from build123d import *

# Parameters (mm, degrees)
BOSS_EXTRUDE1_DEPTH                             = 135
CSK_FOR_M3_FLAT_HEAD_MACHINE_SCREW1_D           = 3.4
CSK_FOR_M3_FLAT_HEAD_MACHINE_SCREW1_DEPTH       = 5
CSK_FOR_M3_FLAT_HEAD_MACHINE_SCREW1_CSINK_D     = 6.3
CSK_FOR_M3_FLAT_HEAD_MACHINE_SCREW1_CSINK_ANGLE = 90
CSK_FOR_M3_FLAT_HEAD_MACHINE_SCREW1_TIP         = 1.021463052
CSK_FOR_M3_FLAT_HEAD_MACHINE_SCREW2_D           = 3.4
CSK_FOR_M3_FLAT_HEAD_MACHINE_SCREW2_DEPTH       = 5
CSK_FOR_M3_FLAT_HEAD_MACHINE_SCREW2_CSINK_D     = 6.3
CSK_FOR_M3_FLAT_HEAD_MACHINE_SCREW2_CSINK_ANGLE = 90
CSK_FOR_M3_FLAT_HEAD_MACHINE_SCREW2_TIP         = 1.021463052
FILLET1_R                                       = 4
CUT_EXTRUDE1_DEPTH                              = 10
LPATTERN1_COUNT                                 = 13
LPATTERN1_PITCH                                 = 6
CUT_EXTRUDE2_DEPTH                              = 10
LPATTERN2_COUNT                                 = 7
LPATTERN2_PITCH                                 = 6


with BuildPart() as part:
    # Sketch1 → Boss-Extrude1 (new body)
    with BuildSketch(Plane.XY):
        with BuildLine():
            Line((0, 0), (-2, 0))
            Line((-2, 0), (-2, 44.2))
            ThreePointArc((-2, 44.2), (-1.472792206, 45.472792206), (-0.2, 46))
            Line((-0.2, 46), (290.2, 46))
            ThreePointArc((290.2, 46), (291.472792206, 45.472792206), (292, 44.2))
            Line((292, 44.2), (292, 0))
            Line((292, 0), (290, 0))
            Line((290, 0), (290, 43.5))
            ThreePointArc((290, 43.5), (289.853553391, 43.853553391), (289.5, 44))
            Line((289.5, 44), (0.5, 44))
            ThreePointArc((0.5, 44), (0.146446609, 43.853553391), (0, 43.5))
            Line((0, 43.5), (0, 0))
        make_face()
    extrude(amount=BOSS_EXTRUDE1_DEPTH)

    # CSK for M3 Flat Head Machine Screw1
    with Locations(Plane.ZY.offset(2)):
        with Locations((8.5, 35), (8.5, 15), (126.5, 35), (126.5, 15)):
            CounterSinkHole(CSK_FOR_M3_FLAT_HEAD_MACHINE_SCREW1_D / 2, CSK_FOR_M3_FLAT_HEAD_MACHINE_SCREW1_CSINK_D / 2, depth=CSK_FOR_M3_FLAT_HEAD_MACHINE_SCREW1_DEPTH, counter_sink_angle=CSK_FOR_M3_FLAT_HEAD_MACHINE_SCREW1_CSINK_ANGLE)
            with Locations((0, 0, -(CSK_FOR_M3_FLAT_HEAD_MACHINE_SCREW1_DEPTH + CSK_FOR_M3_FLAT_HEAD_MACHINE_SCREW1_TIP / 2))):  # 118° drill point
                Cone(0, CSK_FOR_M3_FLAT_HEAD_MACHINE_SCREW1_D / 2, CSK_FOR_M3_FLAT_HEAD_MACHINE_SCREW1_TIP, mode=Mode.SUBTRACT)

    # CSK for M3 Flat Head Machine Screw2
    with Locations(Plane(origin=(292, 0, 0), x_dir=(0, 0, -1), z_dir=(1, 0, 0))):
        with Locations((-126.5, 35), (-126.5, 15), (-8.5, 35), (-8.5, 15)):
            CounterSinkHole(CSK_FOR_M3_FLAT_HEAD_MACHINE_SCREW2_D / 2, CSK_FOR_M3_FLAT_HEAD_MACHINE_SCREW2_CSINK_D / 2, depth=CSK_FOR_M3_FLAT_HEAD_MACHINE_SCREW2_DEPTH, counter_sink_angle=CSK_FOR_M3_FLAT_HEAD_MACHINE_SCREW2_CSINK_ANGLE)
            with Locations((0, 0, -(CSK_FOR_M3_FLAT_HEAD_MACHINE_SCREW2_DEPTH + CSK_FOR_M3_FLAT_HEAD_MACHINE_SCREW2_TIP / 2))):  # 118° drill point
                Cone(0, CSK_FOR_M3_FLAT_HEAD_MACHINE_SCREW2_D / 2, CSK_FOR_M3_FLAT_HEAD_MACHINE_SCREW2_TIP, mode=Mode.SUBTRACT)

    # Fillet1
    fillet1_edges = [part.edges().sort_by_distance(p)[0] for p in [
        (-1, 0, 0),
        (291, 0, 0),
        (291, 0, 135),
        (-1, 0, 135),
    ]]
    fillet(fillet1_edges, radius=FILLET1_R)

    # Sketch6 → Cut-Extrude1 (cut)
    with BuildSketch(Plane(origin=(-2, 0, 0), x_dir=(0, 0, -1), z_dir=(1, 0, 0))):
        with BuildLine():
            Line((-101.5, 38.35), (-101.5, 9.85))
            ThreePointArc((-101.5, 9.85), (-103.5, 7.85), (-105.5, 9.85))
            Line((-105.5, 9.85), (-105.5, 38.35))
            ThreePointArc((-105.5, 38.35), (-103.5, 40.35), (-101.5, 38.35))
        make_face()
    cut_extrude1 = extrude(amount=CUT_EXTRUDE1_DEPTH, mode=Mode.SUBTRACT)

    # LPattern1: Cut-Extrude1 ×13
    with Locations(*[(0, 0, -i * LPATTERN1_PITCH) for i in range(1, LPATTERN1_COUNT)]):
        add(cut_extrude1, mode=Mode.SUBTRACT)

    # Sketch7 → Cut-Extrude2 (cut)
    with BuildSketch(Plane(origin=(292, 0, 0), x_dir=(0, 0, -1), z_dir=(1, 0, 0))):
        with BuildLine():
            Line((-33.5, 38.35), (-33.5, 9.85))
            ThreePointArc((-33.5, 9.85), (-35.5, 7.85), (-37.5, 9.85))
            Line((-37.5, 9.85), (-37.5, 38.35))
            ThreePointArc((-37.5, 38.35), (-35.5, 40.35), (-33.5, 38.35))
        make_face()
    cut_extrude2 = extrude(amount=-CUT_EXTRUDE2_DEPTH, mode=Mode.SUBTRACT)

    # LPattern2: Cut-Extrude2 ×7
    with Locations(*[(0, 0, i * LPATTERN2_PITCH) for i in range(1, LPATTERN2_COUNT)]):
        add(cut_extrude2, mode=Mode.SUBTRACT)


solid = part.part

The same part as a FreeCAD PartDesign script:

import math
import FreeCAD as App
import Part
import Sketcher
Q = App.Units.Quantity


def edges_at(feature, points):
    """Names of the edges that pass closest to the given points."""
    edges = feature.Shape.Edges
    near = lambda p: min(range(len(edges)), key=lambda i: edges[i].distToShape(Part.Vertex(*p))[0])
    return sorted({f"Edge{near(p) + 1}" for p in points})

doc = App.newDocument("Part")
body = doc.addObject("PartDesign::Body", "Body")

# Sketch on XY plane
sketch1 = body.newObject("Sketcher::SketchObject", "Sketch")
sketch1.AttachmentSupport = (doc.getObject("XY_Plane"), [""])
sketch1.MapMode = "FlatFace"
sketch1.addGeometry([
    Part.LineSegment(App.Vector(-2, 0, 0), App.Vector(0, 0, 0)),  # 0
    Part.LineSegment(App.Vector(0, 0, 0), App.Vector(0, 43.5, 0)),  # 1
    Part.ArcOfCircle(Part.Circle(App.Vector(0.5, 43.5, 0), App.Vector(0, 0, 1), 0.5), math.radians(90), math.radians(180)),  # 2
    Part.LineSegment(App.Vector(0.5, 44, 0), App.Vector(289.5, 44, 0)),  # 3
    Part.ArcOfCircle(Part.Circle(App.Vector(289.5, 43.5, 0), App.Vector(0, 0, 1), 0.5), math.radians(0), math.radians(90)),  # 4
    Part.LineSegment(App.Vector(290, 43.5, 0), App.Vector(290, 0, 0)),  # 5
    Part.LineSegment(App.Vector(290, 0, 0), App.Vector(292, 0, 0)),  # 6
    Part.LineSegment(App.Vector(292, 0, 0), App.Vector(292, 44.2, 0)),  # 7
    Part.ArcOfCircle(Part.Circle(App.Vector(290.2, 44.2, 0), App.Vector(0, 0, 1), 1.8), math.radians(0), math.radians(90)),  # 8
    Part.LineSegment(App.Vector(290.2, 46, 0), App.Vector(-0.2, 46, 0)),  # 9
    Part.ArcOfCircle(Part.Circle(App.Vector(-0.2, 44.2, 0), App.Vector(0, 0, 1), 1.8), math.radians(90), math.radians(180)),  # 10
    Part.LineSegment(App.Vector(-2, 44.2, 0), App.Vector(-2, 0, 0)),  # 11
], False)
sketch1.addConstraint([
    Sketcher.Constraint("Coincident", 0, 2, 1, 1),
    Sketcher.Constraint("Tangent", 1, 2, 2, 2),
    Sketcher.Constraint("Tangent", 2, 1, 3, 1),
    Sketcher.Constraint("Tangent", 3, 2, 4, 2),
    Sketcher.Constraint("Tangent", 4, 1, 5, 1),
    Sketcher.Constraint("Coincident", 5, 2, 6, 1),
    Sketcher.Constraint("Coincident", 6, 2, 7, 1),
    Sketcher.Constraint("Tangent", 7, 2, 8, 1),
    Sketcher.Constraint("Tangent", 8, 2, 9, 1),
    Sketcher.Constraint("Tangent", 9, 2, 10, 1),
    Sketcher.Constraint("Tangent", 10, 2, 11, 1),
    Sketcher.Constraint("Coincident", 11, 2, 0, 1),
    Sketcher.Constraint("Horizontal", 0),
    Sketcher.Constraint("Vertical", 1),
    Sketcher.Constraint("Horizontal", 3),
    Sketcher.Constraint("Vertical", 5),
    Sketcher.Constraint("Horizontal", 6),
    Sketcher.Constraint("Vertical", 7),
    Sketcher.Constraint("Horizontal", 9),
    Sketcher.Constraint("Vertical", 11),
    Sketcher.Constraint("Coincident", 0, 2, -1, 1),
    Sketcher.Constraint("Equal", 2, 4),
    Sketcher.Constraint("Equal", 8, 10),
    Sketcher.Constraint("PointOnObject", 5, 2, -1),
    Sketcher.Constraint("Equal", 0, 6),
    Sketcher.Constraint("Radius", 2, Q("0.5 mm")),
    Sketcher.Constraint("Radius", 8, Q("1.8 mm")),
    Sketcher.Constraint("DistanceX", 0, 1, 0, 2, Q("2 mm")),
    Sketcher.Constraint("DistanceX", 3, 1, 3, 2, Q("289 mm")),
    Sketcher.Constraint("DistanceY", 1, 1, 1, 2, Q("43.5 mm")),
    Sketcher.Constraint("DistanceY", 7, 1, 7, 2, Q("44.2 mm")),
])
pad1 = body.newObject("PartDesign::Pad", "Pad")
pad1.Profile = sketch1
pad1.Length = 135

# Sketch on YZ plane
sketch2 = body.newObject("Sketcher::SketchObject", "Sketch001")
sketch2.AttachmentSupport = (doc.getObject("YZ_Plane"), [""])
sketch2.MapMode = "FlatFace"
sketch2.AttachmentOffset = App.Placement(App.Vector(0, 0, -2), App.Rotation())
sketch2.addGeometry([
    Part.Circle(App.Vector(35, 8.5, 0), App.Vector(0, 0, 1), 1.7),
    Part.Circle(App.Vector(15, 8.5, 0), App.Vector(0, 0, 1), 1.7),
    Part.Circle(App.Vector(35, 126.5, 0), App.Vector(0, 0, 1), 1.7),
    Part.Circle(App.Vector(15, 126.5, 0), App.Vector(0, 0, 1), 1.7),
], False)
sketch2.addConstraint([
    Sketcher.Constraint("Equal", 0, 1),
    Sketcher.Constraint("Equal", 1, 2),
    Sketcher.Constraint("Equal", 2, 3),
    Sketcher.Constraint("Horizontal", 0, 3, 1, 3),
    Sketcher.Constraint("Horizontal", 2, 3, 3, 3),
    Sketcher.Constraint("Vertical", 0, 3, 2, 3),
    Sketcher.Constraint("Vertical", 1, 3, 3, 3),
    Sketcher.Constraint("Diameter", 0, Q("3.4 mm")),
    Sketcher.Constraint("DistanceX", -1, 1, 0, 3, Q("35 mm")),
    Sketcher.Constraint("DistanceX", -1, 1, 1, 3, Q("15 mm")),
    Sketcher.Constraint("DistanceY", 0, 3, 2, 3, Q("118 mm")),
    Sketcher.Constraint("DistanceY", -1, 1, 0, 3, Q("8.5 mm")),
])
doc.recompute()
hole = body.newObject("PartDesign::Hole", "Hole")
hole.Profile = sketch2
hole.ThreadType = "None"
hole.Diameter = 3.4
hole.DepthType = "Dimension"
hole.Depth = 5
hole.DrillPoint = "Angled"
hole.DrillPointAngle = 118
hole.HoleCutType = "Countersink"
hole.HoleCutDiameter = 6.3
hole.HoleCutCountersinkAngle = 90
hole.Reversed = True

# Sketch on YZ plane
sketch3 = body.newObject("Sketcher::SketchObject", "Sketch002")
sketch3.AttachmentSupport = (doc.getObject("YZ_Plane"), [""])
sketch3.MapMode = "FlatFace"
sketch3.AttachmentOffset = App.Placement(App.Vector(0, 0, 292), App.Rotation())
sketch3.addGeometry([
    Part.Circle(App.Vector(35, 126.5, 0), App.Vector(0, 0, 1), 1.7),
    Part.Circle(App.Vector(15, 126.5, 0), App.Vector(0, 0, 1), 1.7),
    Part.Circle(App.Vector(35, 8.5, 0), App.Vector(0, 0, 1), 1.7),
    Part.Circle(App.Vector(15, 8.5, 0), App.Vector(0, 0, 1), 1.7),
], False)
sketch3.addConstraint([
    Sketcher.Constraint("Equal", 0, 1),
    Sketcher.Constraint("Equal", 1, 2),
    Sketcher.Constraint("Equal", 2, 3),
    Sketcher.Constraint("Horizontal", 0, 3, 1, 3),
    Sketcher.Constraint("Horizontal", 2, 3, 3, 3),
    Sketcher.Constraint("Vertical", 0, 3, 2, 3),
    Sketcher.Constraint("Vertical", 1, 3, 3, 3),
    Sketcher.Constraint("Diameter", 0, Q("3.4 mm")),
    Sketcher.Constraint("DistanceX", -1, 1, 0, 3, Q("35 mm")),
    Sketcher.Constraint("DistanceX", -1, 1, 1, 3, Q("15 mm")),
    Sketcher.Constraint("DistanceY", 2, 3, 0, 3, Q("118 mm")),
    Sketcher.Constraint("DistanceY", -1, 1, 0, 3, Q("126.5 mm")),
])
doc.recompute()
hole2 = body.newObject("PartDesign::Hole", "Hole001")
hole2.Profile = sketch3
hole2.ThreadType = "None"
hole2.Diameter = 3.4
hole2.DepthType = "Dimension"
hole2.Depth = 5
hole2.DrillPoint = "Angled"
hole2.DrillPointAngle = 118
hole2.HoleCutType = "Countersink"
hole2.HoleCutDiameter = 6.3
hole2.HoleCutCountersinkAngle = 90
doc.recompute()

fillet = body.newObject("PartDesign::Fillet", "Fillet")
fillet.Base = (hole2, edges_at(hole2, [
    (-1, 0, 0),
    (291, 0, 0),
    (291, 0, 135),
    (-1, 0, 135),
]))
fillet.Radius = 4

# Sketch on YZ plane
sketch4 = body.newObject("Sketcher::SketchObject", "Sketch003")
sketch4.AttachmentSupport = (doc.getObject("YZ_Plane"), [""])
sketch4.MapMode = "FlatFace"
sketch4.AttachmentOffset = App.Placement(App.Vector(0, 0, -2), App.Rotation())
sketch4.addGeometry([
    Part.LineSegment(App.Vector(9.85, 101.5, 0), App.Vector(38.35, 101.5, 0)),
    Part.ArcOfCircle(Part.Circle(App.Vector(38.35, 103.5, 0), App.Vector(0, 0, 1), 2), math.radians(-90), math.radians(90)),
    Part.LineSegment(App.Vector(38.35, 105.5, 0), App.Vector(9.85, 105.5, 0)),
    Part.ArcOfCircle(Part.Circle(App.Vector(9.85, 103.5, 0), App.Vector(0, 0, 1), 2), math.radians(90), math.radians(270)),
], False)
sketch4.addConstraint([
    Sketcher.Constraint("Tangent", 0, 2, 1, 1),
    Sketcher.Constraint("Tangent", 1, 2, 2, 1),
    Sketcher.Constraint("Tangent", 2, 2, 3, 1),
    Sketcher.Constraint("Tangent", 3, 2, 0, 1),
    Sketcher.Constraint("Horizontal", 0),
    Sketcher.Constraint("Horizontal", 2),
    Sketcher.Constraint("Radius", 1, Q("2 mm")),
    Sketcher.Constraint("DistanceX", 0, 1, 0, 2, Q("28.5 mm")),
    Sketcher.Constraint("DistanceY", -1, 1, 1, 3, Q("103.5 mm")),
    Sketcher.Constraint("DistanceX", -1, 1, 1, 3, Q("38.35 mm")),
])
pocket1 = body.newObject("PartDesign::Pocket", "Pocket")
pocket1.Profile = sketch4
pocket1.Length = 10
pocket1.Reversed = True
doc.recompute()

linearpattern = body.newObject("PartDesign::LinearPattern", "LinearPattern")
linearpattern.Originals = [pocket1]
linearpattern.Direction = (doc.getObject("Z_Axis"), [""])
linearpattern.Mode = "offset"
linearpattern.Offset = 6
linearpattern.Occurrences = 13
linearpattern.Reversed = True
body.Tip = linearpattern

# Sketch on YZ plane
sketch5 = body.newObject("Sketcher::SketchObject", "Sketch004")
sketch5.AttachmentSupport = (doc.getObject("YZ_Plane"), [""])
sketch5.MapMode = "FlatFace"
sketch5.AttachmentOffset = App.Placement(App.Vector(0, 0, 292), App.Rotation())
sketch5.addGeometry([
    Part.LineSegment(App.Vector(9.85, 33.5, 0), App.Vector(38.35, 33.5, 0)),
    Part.ArcOfCircle(Part.Circle(App.Vector(38.35, 35.5, 0), App.Vector(0, 0, 1), 2), math.radians(-90), math.radians(90)),
    Part.LineSegment(App.Vector(38.35, 37.5, 0), App.Vector(9.85, 37.5, 0)),
    Part.ArcOfCircle(Part.Circle(App.Vector(9.85, 35.5, 0), App.Vector(0, 0, 1), 2), math.radians(90), math.radians(270)),
], False)
sketch5.addConstraint([
    Sketcher.Constraint("Tangent", 0, 2, 1, 1),
    Sketcher.Constraint("Tangent", 1, 2, 2, 1),
    Sketcher.Constraint("Tangent", 2, 2, 3, 1),
    Sketcher.Constraint("Tangent", 3, 2, 0, 1),
    Sketcher.Constraint("Horizontal", 0),
    Sketcher.Constraint("Horizontal", 2),
    Sketcher.Constraint("Radius", 1, Q("2 mm")),
    Sketcher.Constraint("DistanceX", 0, 1, 0, 2, Q("28.5 mm")),
    Sketcher.Constraint("DistanceY", -1, 1, 1, 3, Q("35.5 mm")),
    Sketcher.Constraint("DistanceX", -1, 1, 1, 3, Q("38.35 mm")),
])
pocket2 = body.newObject("PartDesign::Pocket", "Pocket001")
pocket2.Profile = sketch5
pocket2.Length = 10
doc.recompute()

linearpattern2 = body.newObject("PartDesign::LinearPattern", "LinearPattern001")
linearpattern2.Originals = [pocket2]
linearpattern2.Direction = (doc.getObject("Z_Axis"), [""])
linearpattern2.Mode = "offset"
linearpattern2.Offset = 6
linearpattern2.Occurrences = 7
body.Tip = linearpattern2

doc.recompute()
